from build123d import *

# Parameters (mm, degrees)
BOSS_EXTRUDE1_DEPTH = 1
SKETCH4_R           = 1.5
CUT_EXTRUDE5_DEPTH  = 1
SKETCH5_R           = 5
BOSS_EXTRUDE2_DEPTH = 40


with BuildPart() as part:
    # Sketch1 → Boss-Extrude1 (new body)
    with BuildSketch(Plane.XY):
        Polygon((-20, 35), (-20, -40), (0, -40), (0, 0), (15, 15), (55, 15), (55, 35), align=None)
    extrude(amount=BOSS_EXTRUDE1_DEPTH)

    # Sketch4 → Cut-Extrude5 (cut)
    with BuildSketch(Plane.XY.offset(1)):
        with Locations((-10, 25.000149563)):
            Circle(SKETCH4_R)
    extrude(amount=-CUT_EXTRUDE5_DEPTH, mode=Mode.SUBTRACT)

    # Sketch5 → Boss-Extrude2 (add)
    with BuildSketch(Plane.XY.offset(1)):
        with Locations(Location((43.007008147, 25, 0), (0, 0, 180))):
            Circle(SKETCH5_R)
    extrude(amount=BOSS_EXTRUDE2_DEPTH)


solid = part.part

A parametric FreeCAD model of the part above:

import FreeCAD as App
import Part
import Sketcher

doc = App.newDocument("Part")
body = doc.addObject("PartDesign::Body", "Body")

# Sketch on XY plane
sketch1 = doc.addObject("Sketcher::SketchObject", "Sketch")
body.addObject(sketch1)
sketch1.AttachmentSupport = (doc.XY_Plane, [""])
sketch1.MapMode = "FlatFace"
sketch1.addGeometry(Part.LineSegment(App.Vector(-20, 35, 0), App.Vector(-20, -40, 0)), False)
sketch1.addGeometry(Part.LineSegment(App.Vector(-20, -40, 0), App.Vector(0, -40, 0)), False)
sketch1.addGeometry(Part.LineSegment(App.Vector(0, -40, 0), App.Vector(0, 0, 0)), False)
sketch1.addGeometry(Part.LineSegment(App.Vector(0, 0, 0), App.Vector(15, 15, 0)), False)
sketch1.addGeometry(Part.LineSegment(App.Vector(15, 15, 0), App.Vector(55, 15, 0)), False)
sketch1.addGeometry(Part.LineSegment(App.Vector(55, 15, 0), App.Vector(55, 35, 0)), False)
sketch1.addGeometry(Part.LineSegment(App.Vector(55, 35, 0), App.Vector(-20, 35, 0)), False)
sketch1.addConstraint(Sketcher.Constraint("Coincident", 0, 2, 1, 1))
sketch1.addConstraint(Sketcher.Constraint("Coincident", 1, 2, 2, 1))
sketch1.addConstraint(Sketcher.Constraint("Coincident", 2, 2, 3, 1))
sketch1.addConstraint(Sketcher.Constraint("Coincident", 3, 2, 4, 1))
sketch1.addConstraint(Sketcher.Constraint("Coincident", 4, 2, 5, 1))
sketch1.addConstraint(Sketcher.Constraint("Coincident", 5, 2, 6, 1))
sketch1.addConstraint(Sketcher.Constraint("Coincident", 6, 2, 0, 1))
sketch1.addConstraint(Sketcher.Constraint("Vertical", 0))
sketch1.addConstraint(Sketcher.Constraint("Horizontal", 1))
sketch1.addConstraint(Sketcher.Constraint("Vertical", 2))
sketch1.addConstraint(Sketcher.Constraint("Horizontal", 4))
sketch1.addConstraint(Sketcher.Constraint("Vertical", 5))
sketch1.addConstraint(Sketcher.Constraint("Horizontal", 6))
sketch1.addConstraint(Sketcher.Constraint("Coincident", 2, 2, -1, 1))
sketch1.addConstraint(Sketcher.Constraint("Equal", 6, 0))
sketch1.addConstraint(Sketcher.Constraint("Equal", 4, 2))
sketch1.addConstraint(Sketcher.Constraint("Equal", 1, 5))
sketch1.addConstraint(Sketcher.Constraint("DistanceX", 1, 1, 1, 2, 20.0))
sketch1.addConstraint(Sketcher.Constraint("DistanceX", 4, 1, 4, 2, 40.0))
sketch1.addConstraint(Sketcher.Constraint("DistanceX", 6, 2, 6, 1, 75.0))
pad1 = doc.addObject("PartDesign::Pad", "Pad")
body.addObject(pad1)
pad1.Profile = sketch1
pad1.Length = 1

# Sketch on XY plane
sketch2 = doc.addObject("Sketcher::SketchObject", "Sketch001")
body.addObject(sketch2)
sketch2.AttachmentSupport = (doc.XY_Plane, [""])
sketch2.MapMode = "FlatFace"
sketch2.AttachmentOffset = App.Placement(App.Vector(0, 0, 1), App.Rotation())
sketch2.addGeometry(Part.Circle(App.Vector(-10, 25, 0), App.Vector(0, 0, 1), 1.5), False)
sketch2.addConstraint(Sketcher.Constraint("Diameter", 0, 3.0))
sketch2.addConstraint(Sketcher.Constraint("DistanceX", 0, 3, -1, 1, 10.0))
sketch2.addConstraint(Sketcher.Constraint("DistanceY", -1, 1, 0, 3, 25.00015))
pocket1 = doc.addObject("PartDesign::Pocket", "Pocket")
body.addObject(pocket1)
pocket1.Profile = sketch2
pocket1.Length = 1

# Sketch on XY plane
sketch3 = doc.addObject("Sketcher::SketchObject", "Sketch002")
body.addObject(sketch3)
sketch3.AttachmentSupport = (doc.XY_Plane, [""])
sketch3.MapMode = "FlatFace"
sketch3.AttachmentOffset = App.Placement(App.Vector(0, 0, 1), App.Rotation())
sketch3.addGeometry(Part.Circle(App.Vector(43, 25, 0), App.Vector(0, 0, 1), 5), False)
sketch3.addConstraint(Sketcher.Constraint("Diameter", 0, 10.0))
sketch3.addConstraint(Sketcher.Constraint("DistanceY", -1, 1, 0, 3, 25.0))
sketch3.addConstraint(Sketcher.Constraint("DistanceX", -1, 1, 0, 3, 43.007008))
pad2 = doc.addObject("PartDesign::Pad", "Pad001")
body.addObject(pad2)
pad2.Profile = sketch3
pad2.Length = 40

doc.recompute()
